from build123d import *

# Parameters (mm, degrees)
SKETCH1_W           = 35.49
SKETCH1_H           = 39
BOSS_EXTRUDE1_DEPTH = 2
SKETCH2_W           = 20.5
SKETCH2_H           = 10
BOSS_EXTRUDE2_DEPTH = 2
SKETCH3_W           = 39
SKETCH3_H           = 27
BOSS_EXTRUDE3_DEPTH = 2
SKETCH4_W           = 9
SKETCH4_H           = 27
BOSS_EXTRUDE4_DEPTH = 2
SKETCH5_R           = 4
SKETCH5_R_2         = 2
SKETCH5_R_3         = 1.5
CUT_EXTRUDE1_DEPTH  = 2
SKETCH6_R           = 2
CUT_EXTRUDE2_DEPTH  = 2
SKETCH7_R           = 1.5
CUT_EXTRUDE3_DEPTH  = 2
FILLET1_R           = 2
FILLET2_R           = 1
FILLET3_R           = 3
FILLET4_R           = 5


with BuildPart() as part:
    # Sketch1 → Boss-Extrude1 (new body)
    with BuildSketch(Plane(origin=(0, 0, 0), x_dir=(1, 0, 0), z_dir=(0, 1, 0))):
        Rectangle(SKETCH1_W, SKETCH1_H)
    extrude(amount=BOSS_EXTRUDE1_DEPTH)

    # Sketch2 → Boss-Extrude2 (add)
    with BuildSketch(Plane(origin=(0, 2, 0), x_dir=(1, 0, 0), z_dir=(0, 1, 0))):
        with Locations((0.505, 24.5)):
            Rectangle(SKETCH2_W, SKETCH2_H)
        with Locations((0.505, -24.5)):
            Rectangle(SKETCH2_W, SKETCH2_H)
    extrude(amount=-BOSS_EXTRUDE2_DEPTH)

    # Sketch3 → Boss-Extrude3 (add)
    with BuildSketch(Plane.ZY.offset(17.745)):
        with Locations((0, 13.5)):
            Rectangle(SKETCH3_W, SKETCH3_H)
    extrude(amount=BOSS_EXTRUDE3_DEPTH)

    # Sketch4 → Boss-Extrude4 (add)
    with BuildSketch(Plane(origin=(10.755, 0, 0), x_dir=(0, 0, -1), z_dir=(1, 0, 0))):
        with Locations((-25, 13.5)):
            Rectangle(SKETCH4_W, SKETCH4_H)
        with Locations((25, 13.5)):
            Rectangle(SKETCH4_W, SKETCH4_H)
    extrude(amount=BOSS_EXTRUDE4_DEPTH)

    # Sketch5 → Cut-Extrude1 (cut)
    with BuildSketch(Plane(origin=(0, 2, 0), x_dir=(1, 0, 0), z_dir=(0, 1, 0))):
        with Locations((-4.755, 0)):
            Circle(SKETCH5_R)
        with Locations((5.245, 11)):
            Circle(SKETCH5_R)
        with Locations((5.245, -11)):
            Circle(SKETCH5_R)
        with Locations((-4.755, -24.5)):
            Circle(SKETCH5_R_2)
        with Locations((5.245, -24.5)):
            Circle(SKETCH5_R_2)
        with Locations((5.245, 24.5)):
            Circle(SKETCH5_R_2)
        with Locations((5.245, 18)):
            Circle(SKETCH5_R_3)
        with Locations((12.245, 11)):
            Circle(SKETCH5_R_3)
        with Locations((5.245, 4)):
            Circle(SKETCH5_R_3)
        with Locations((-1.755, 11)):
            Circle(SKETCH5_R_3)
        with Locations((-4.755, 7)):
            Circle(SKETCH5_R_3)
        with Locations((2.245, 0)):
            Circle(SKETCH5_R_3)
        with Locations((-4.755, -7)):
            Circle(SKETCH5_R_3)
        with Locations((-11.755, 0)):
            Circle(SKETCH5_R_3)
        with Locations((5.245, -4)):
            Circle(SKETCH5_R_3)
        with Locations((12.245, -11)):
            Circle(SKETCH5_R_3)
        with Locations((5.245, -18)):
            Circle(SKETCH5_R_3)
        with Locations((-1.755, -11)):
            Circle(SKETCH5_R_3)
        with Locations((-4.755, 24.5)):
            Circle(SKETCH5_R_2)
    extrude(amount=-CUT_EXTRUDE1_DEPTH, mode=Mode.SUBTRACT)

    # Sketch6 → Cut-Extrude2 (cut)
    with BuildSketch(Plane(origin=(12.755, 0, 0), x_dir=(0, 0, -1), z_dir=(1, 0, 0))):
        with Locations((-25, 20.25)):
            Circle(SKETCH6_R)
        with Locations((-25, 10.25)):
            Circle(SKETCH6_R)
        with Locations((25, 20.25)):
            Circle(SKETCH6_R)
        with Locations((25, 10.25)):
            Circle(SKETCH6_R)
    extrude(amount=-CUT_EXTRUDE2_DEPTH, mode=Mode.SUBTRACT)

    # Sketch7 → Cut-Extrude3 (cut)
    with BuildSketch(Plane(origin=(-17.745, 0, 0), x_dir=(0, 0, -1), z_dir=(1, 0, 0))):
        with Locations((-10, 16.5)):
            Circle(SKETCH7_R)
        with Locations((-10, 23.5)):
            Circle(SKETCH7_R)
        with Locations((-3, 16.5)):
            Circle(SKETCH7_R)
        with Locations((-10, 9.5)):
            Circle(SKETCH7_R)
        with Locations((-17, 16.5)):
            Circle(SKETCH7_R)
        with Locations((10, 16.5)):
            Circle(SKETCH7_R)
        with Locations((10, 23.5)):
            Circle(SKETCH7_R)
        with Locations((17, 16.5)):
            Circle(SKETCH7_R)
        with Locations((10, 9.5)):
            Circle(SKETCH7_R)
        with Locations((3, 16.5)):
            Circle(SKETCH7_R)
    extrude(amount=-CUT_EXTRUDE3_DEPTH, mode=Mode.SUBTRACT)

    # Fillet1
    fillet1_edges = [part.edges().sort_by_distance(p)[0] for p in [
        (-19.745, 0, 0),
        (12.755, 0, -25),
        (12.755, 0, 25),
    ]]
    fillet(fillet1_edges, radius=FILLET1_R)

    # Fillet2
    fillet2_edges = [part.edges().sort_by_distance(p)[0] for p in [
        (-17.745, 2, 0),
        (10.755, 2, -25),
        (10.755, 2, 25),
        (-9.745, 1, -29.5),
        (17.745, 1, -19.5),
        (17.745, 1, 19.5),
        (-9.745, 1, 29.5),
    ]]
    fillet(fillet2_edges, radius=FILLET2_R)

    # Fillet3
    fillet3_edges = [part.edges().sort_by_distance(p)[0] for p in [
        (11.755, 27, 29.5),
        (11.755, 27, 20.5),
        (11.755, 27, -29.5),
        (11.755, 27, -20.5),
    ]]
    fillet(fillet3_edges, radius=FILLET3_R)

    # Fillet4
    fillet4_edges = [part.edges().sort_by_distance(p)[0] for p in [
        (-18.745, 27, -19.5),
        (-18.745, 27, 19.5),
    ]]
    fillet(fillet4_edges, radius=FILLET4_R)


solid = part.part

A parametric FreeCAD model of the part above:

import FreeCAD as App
import Part
import Sketcher

V = App.Vector
Q = App.Units.Quantity


def edges_at(feature, points):
    """Names of the edges that pass closest to the given points."""
    edges = feature.Shape.Edges
    near = lambda p: min(range(len(edges)), key=lambda i: edges[i].distToShape(Part.Vertex(*p))[0])
    return sorted({f"Edge{near(p) + 1}" for p in points})

doc = App.newDocument("Part")
params = doc.addObject("Spreadsheet::Sheet", "Params")
for row, (alias, value) in enumerate([
    ("sketch1_height", "39 mm"),
    ("sketch1_width", "35.49 mm"),
    ("pad1_length", "2 mm"),
    ("sketch2_height", "10 mm"),
    ("sketch2_width", "20.5 mm"),
    ("pad2_length", "2 mm"),
    ("sketch3_width", "27 mm"),
    ("sketch3_height", "39 mm"),
    ("pad3_length", "2 mm"),
    ("sketch4_width", "27 mm"),
    ("sketch4_height", "9 mm"),
    ("pad4_length", "2 mm"),
    ("sketch5_diameter", "8 mm"),
    ("sketch5_diameter2", "4 mm"),
    ("sketch5_diameter3", "3 mm"),
    ("pocket1_length", "2 mm"),
    ("sketch6_diameter", "4 mm"),
    ("pocket2_length", "2 mm"),
    ("sketch7_diameter", "3 mm"),
    ("pocket3_length", "2 mm"),
    ("fillet_radius", "2 mm"),
    ("fillet2_radius", "1 mm"),
    ("fillet3_radius", "3 mm"),
    ("fillet4_radius", "5 mm"),
], start=1):
    params.set(f"A{row}", alias)
    params.set(f"B{row}", "=" + value)
    params.setAlias(f"B{row}", alias)

body = doc.addObject("PartDesign::Body", "Body")

sketch1 = body.newObject("Sketcher::SketchObject", "Sketch")
sketch1.AttachmentSupport = (doc.getObject("XZ_Plane"), [""])
sketch1.MapMode = "FlatFace"
sketch1.addGeometry([
    Part.LineSegment(V(-18, -20, 0), V(-18, 20, 0)),
    Part.LineSegment(V(-18, 20, 0), V(18, 20, 0)),
    Part.LineSegment(V(18, 20, 0), V(18, -20, 0)),
    Part.LineSegment(V(18, -20, 0), V(-18, -20, 0)),
], False)
sketch1.addConstraint([
    Sketcher.Constraint("Coincident", 0, 2, 1, 1),
    Sketcher.Constraint("Coincident", 1, 2, 2, 1),
    Sketcher.Constraint("Coincident", 2, 2, 3, 1),
    Sketcher.Constraint("Coincident", 3, 2, 0, 1),
    Sketcher.Constraint("Vertical", 0),
    Sketcher.Constraint("Horizontal", 1),
    Sketcher.Constraint("Vertical", 2),
    Sketcher.Constraint("Horizontal", 3),
    Sketcher.Constraint("Symmetric", 0, 2, 2, 2, -1, 1),
    Sketcher.Constraint("DistanceY", 0, 1, 0, 2, Q("39 mm")),
    Sketcher.Constraint("DistanceX", 1, 1, 1, 2, Q("35.49 mm")),
])
sketch1.setExpression("Constraints[9]", "Params.sketch1_height")
sketch1.setExpression("Constraints[10]", "Params.sketch1_width")
pad1 = body.newObject("PartDesign::Pad", "Pad")
pad1.Profile = sketch1
pad1.setExpression("Length", "Params.pad1_length")
pad1.Reversed = True

sketch2 = body.newObject("Sketcher::SketchObject", "Sketch001")
sketch2.AttachmentSupport = (doc.getObject("XZ_Plane"), [""])
sketch2.MapMode = "FlatFace"
sketch2.AttachmentOffset = App.Placement(V(0, 0, -2), App.Rotation())
sketch2.addGeometry([
    Part.LineSegment(V(-10, -30, 0), V(-10, -20, 0)),
    Part.LineSegment(V(-10, -20, 0), V(11, -20, 0)),
    Part.LineSegment(V(11, -20, 0), V(11, -30, 0)),
    Part.LineSegment(V(11, -30, 0), V(-10, -30, 0)),
    Part.LineSegment(V(-10, 20, 0), V(-10, 30, 0)),
    Part.LineSegment(V(-10, 30, 0), V(11, 30, 0)),
    Part.LineSegment(V(11, 30, 0), V(11, 20, 0)),
    Part.LineSegment(V(11, 20, 0), V(-10, 20, 0)),
], False)
sketch2.addConstraint([
    Sketcher.Constraint("Coincident", 0, 2, 1, 1),
    Sketcher.Constraint("Coincident", 1, 2, 2, 1),
    Sketcher.Constraint("Coincident", 2, 2, 3, 1),
    Sketcher.Constraint("Coincident", 3, 2, 0, 1),
    Sketcher.Constraint("Coincident", 4, 2, 5, 1),
    Sketcher.Constraint("Coincident", 5, 2, 6, 1),
    Sketcher.Constraint("Coincident", 6, 2, 7, 1),
    Sketcher.Constraint("Coincident", 7, 2, 4, 1),
    Sketcher.Constraint("Vertical", 0),
    Sketcher.Constraint("Horizontal", 1),
    Sketcher.Constraint("Vertical", 2),
    Sketcher.Constraint("Horizontal", 3),
    Sketcher.Constraint("Vertical", 4),
    Sketcher.Constraint("Horizontal", 5),
    Sketcher.Constraint("Vertical", 6),
    Sketcher.Constraint("Horizontal", 7),
    Sketcher.Constraint("Symmetric", 3, 2, 4, 2, -1),
    Sketcher.Constraint("Symmetric", 1, 2, 6, 2, -1),
    Sketcher.Constraint("DistanceY", 0, 1, 0, 2, Q("10 mm")),
    Sketcher.Constraint("DistanceX", 1, 1, 1, 2, Q("20.5 mm")),
    Sketcher.Constraint("DistanceY", 0, 2, 4, 2, Q("49 mm")),
    Sketcher.Constraint("DistanceX", 0, 2, -1, 1, Q("9.745 mm")),
])
sketch2.setExpression("Constraints[18]", "Params.sketch2_height")
sketch2.setExpression("Constraints[19]", "Params.sketch2_width")
pad2 = body.newObject("PartDesign::Pad", "Pad001")
pad2.Profile = sketch2
pad2.setExpression("Length", "Params.pad2_length")

sketch3 = body.newObject("Sketcher::SketchObject", "Sketch002")
sketch3.AttachmentSupport = (doc.getObject("YZ_Plane"), [""])
sketch3.MapMode = "FlatFace"
sketch3.AttachmentOffset = App.Placement(V(0, 0, -17.745), App.Rotation())
sketch3.addGeometry([
    Part.LineSegment(V(27, -20, 0), V(0, -20, 0)),
    Part.LineSegment(V(0, -20, 0), V(0, 20, 0)),
    Part.LineSegment(V(0, 20, 0), V(27, 20, 0)),
    Part.LineSegment(V(27, 20, 0), V(27, -20, 0)),
], False)
sketch3.addConstraint([
    Sketcher.Constraint("Coincident", 0, 2, 1, 1),
    Sketcher.Constraint("Coincident", 1, 2, 2, 1),
    Sketcher.Constraint("Coincident", 2, 2, 3, 1),
    Sketcher.Constraint("Coincident", 3, 2, 0, 1),
    Sketcher.Constraint("Horizontal", 0),
    Sketcher.Constraint("Vertical", 1),
    Sketcher.Constraint("Horizontal", 2),
    Sketcher.Constraint("Vertical", 3),
    Sketcher.Constraint("Symmetric", 0, 2, 1, 2, -1, 1),
    Sketcher.Constraint("DistanceX", 0, 2, 0, 1, Q("27 mm")),
    Sketcher.Constraint("DistanceY", 1, 1, 1, 2, Q("39 mm")),
])
sketch3.setExpression("Constraints[9]", "Params.sketch3_width")
sketch3.setExpression("Constraints[10]", "Params.sketch3_height")
pad3 = body.newObject("PartDesign::Pad", "Pad002")
pad3.Profile = sketch3
pad3.setExpression("Length", "Params.pad3_length")
pad3.Reversed = True

sketch4 = body.newObject("Sketcher::SketchObject", "Sketch003")
sketch4.AttachmentSupport = (doc.getObject("YZ_Plane"), [""])
sketch4.MapMode = "FlatFace"
sketch4.AttachmentOffset = App.Placement(V(0, 0, 10.755), App.Rotation())
sketch4.addGeometry([
    Part.LineSegment(V(27, 30, 0), V(0, 30, 0)),
    Part.LineSegment(V(0, 30, 0), V(0, 20, 0)),
    Part.LineSegment(V(0, 20, 0), V(27, 20, 0)),
    Part.LineSegment(V(27, 20, 0), V(27, 30, 0)),
    Part.LineSegment(V(27, -20, 0), V(0, -20, 0)),
    Part.LineSegment(V(0, -20, 0), V(0, -30, 0)),
    Part.LineSegment(V(0, -30, 0), V(27, -30, 0)),
    Part.LineSegment(V(27, -30, 0), V(27, -20, 0)),
], False)
sketch4.addConstraint([
    Sketcher.Constraint("Coincident", 0, 2, 1, 1),
    Sketcher.Constraint("Coincident", 1, 2, 2, 1),
    Sketcher.Constraint("Coincident", 2, 2, 3, 1),
    Sketcher.Constraint("Coincident", 3, 2, 0, 1),
    Sketcher.Constraint("Coincident", 4, 2, 5, 1),
    Sketcher.Constraint("Coincident", 5, 2, 6, 1),
    Sketcher.Constraint("Coincident", 6, 2, 7, 1),
    Sketcher.Constraint("Coincident", 7, 2, 4, 1),
    Sketcher.Constraint("Horizontal", 0),
    Sketcher.Constraint("Vertical", 1),
    Sketcher.Constraint("Horizontal", 2),
    Sketcher.Constraint("Vertical", 3),
    Sketcher.Constraint("Horizontal", 4),
    Sketcher.Constraint("Vertical", 5),
    Sketcher.Constraint("Horizontal", 6),
    Sketcher.Constraint("Vertical", 7),
    Sketcher.Constraint("Symmetric", 1, 2, 4, 2, -1, 1),
    Sketcher.Constraint("Symmetric", 0, 2, 5, 2, -1),
    Sketcher.Constraint("Vertical", 3, 2, 6, 2),
    Sketcher.Constraint("DistanceX", 0, 2, 0, 1, Q("27 mm")),
    Sketcher.Constraint("DistanceY", 1, 2, 1, 1, Q("9 mm")),
    Sketcher.Constraint("DistanceY", 4, 2, 1, 2, Q("41 mm")),
])
sketch4.setExpression("Constraints[19]", "Params.sketch4_width")
sketch4.setExpression("Constraints[20]", "Params.sketch4_height")
pad4 = body.newObject("PartDesign::Pad", "Pad003")
pad4.Profile = sketch4
pad4.setExpression("Length", "Params.pad4_length")

sketch5 = body.newObject("Sketcher::SketchObject", "Sketch004")
sketch5.AttachmentSupport = (doc.getObject("XZ_Plane"), [""])
sketch5.MapMode = "FlatFace"
sketch5.AttachmentOffset = App.Placement(V(0, 0, -2), App.Rotation())
sketch5.addGeometry([
    Part.Circle(V(-4.8, 0, 0), V(0, 0, 1), 4),
    Part.Circle(V(5.2, -11, 0), V(0, 0, 1), 4),
    Part.Circle(V(5.2, 11, 0), V(0, 0, 1), 4),
    Part.Circle(V(-4.8, 24.5, 0), V(0, 0, 1), 2),
    Part.Circle(V(5.2, 24.5, 0), V(0, 0, 1), 2),
    Part.Circle(V(5.2, -24.5, 0), V(0, 0, 1), 2),
    Part.Circle(V(5.2, -18, 0), V(0, 0, 1), 1.5),
    Part.Circle(V(12.2, -11, 0), V(0, 0, 1), 1.5),
    Part.Circle(V(5.2, -4, 0), V(0, 0, 1), 1.5),
    Part.Circle(V(-1.8, -11, 0), V(0, 0, 1), 1.5),
    Part.Circle(V(-4.8, -7, 0), V(0, 0, 1), 1.5),
    Part.Circle(V(2.2, 0, 0), V(0, 0, 1), 1.5),
    Part.Circle(V(-4.8, 7, 0), V(0, 0, 1), 1.5),
    Part.Circle(V(-11.8, 0, 0), V(0, 0, 1), 1.5),
    Part.Circle(V(5.2, 4, 0), V(0, 0, 1), 1.5),
    Part.Circle(V(12.2, 11, 0), V(0, 0, 1), 1.5),
    Part.Circle(V(5.2, 18, 0), V(0, 0, 1), 1.5),
    Part.Circle(V(-1.8, 11, 0), V(0, 0, 1), 1.5),
    Part.Circle(V(-4.8, -24.5, 0), V(0, 0, 1), 2),
], False)
sketch5.addConstraint([
    Sketcher.Constraint("Equal", 0, 1),
    Sketcher.Constraint("Equal", 1, 2),
    Sketcher.Constraint("Equal", 3, 4),
    Sketcher.Constraint("Equal", 4, 5),
    Sketcher.Constraint("Equal", 6, 7),
    Sketcher.Constraint("Equal", 7, 8),
    Sketcher.Constraint("Equal", 8, 9),
    Sketcher.Constraint("Equal", 9, 10),
    Sketcher.Constraint("Equal", 10, 11),
    Sketcher.Constraint("Equal", 11, 12),
    Sketcher.Constraint("Equal", 12, 13),
    Sketcher.Constraint("Equal", 13, 14),
    Sketcher.Constraint("Equal", 14, 15),
    Sketcher.Constraint("Equal", 15, 16),
    Sketcher.Constraint("Equal", 16, 17),
    Sketcher.Constraint("Equal", 5, 18),
    Sketcher.Constraint("Symmetric", 1, 3, 2, 3, -1),
    Sketcher.Constraint("Symmetric", 4, 3, 5, 3, -1),
    Sketcher.Constraint("Symmetric", 10, 3, 12, 3, -1),
    Sketcher.Constraint("Symmetric", 8, 3, 14, 3, -1),
    Sketcher.Constraint("Symmetric", 7, 3, 15, 3, -1),
    Sketcher.Constraint("Symmetric", 6, 3, 16, 3, -1),
    Sketcher.Constraint("Symmetric", 9, 3, 17, 3, -1),
    Sketcher.Constraint("Symmetric", 3, 3, 18, 3, -1),
    Sketcher.Constraint("PointOnObject", 0, 3, -1),
    Sketcher.Constraint("PointOnObject", 11, 3, -1),
    Sketcher.Constraint("PointOnObject", 13, 3, -1),
    Sketcher.Constraint("Horizontal", 3, 3, 4, 3),
    Sketcher.Constraint("Horizontal", 1, 3, 7, 3),
    Sketcher.Constraint("Horizontal", 7, 3, 9, 3),
    Sketcher.Constraint("Vertical", 0, 3, 3, 3),
    Sketcher.Constraint("Vertical", 2, 3, 4, 3),
    Sketcher.Constraint("Vertical", 5, 3, 6, 3),
    Sketcher.Constraint("Vertical", 6, 3, 8, 3),
    Sketcher.Constraint("Vertical", 3, 3, 10, 3),
    Sketcher.Constraint("Diameter", 0, Q("8 mm")),
    Sketcher.Constraint("Diameter", 3, Q("4 mm")),
    Sketcher.Constraint("Diameter", 6, Q("3 mm")),
    Sketcher.Constraint("DistanceY", 1, 3, -1, 1, Q("11 mm")),
    Sketcher.Constraint("DistanceY", 6, 3, -1, 1, Q("18 mm")),
    Sketcher.Constraint("DistanceY", 8, 3, -1, 1, Q("4 mm")),
    Sketcher.Constraint("DistanceY", 10, 3, -1, 1, Q("7 mm")),
    Sketcher.Constraint("DistanceX", 0, 3, 1, 3, Q("10 mm")),
    Sketcher.Constraint("DistanceY", 5, 3, 4, 3, Q("49 mm")),
    Sketcher.Constraint("DistanceX", 1, 3, 7, 3, Q("7 mm")),
    Sketcher.Constraint("DistanceX", 9, 3, 1, 3, Q("7 mm")),
    Sketcher.Constraint("DistanceX", 11, 3, 8, 3, Q("3 mm")),
    Sketcher.Constraint("DistanceX", 13, 3, 0, 3, Q("7 mm")),
    Sketcher.Constraint("DistanceX", 0, 3, -1, 1, Q("4.755 mm")),
])
sketch5.setExpression("Constraints[35]", "Params.sketch5_diameter")
sketch5.setExpression("Constraints[36]", "Params.sketch5_diameter2")
sketch5.setExpression("Constraints[37]", "Params.sketch5_diameter3")
pocket1 = body.newObject("PartDesign::Pocket", "Pocket")
pocket1.Profile = sketch5
pocket1.setExpression("Length", "Params.pocket1_length")
pocket1.Reversed = True

sketch6 = body.newObject("Sketcher::SketchObject", "Sketch005")
sketch6.AttachmentSupport = (doc.getObject("YZ_Plane"), [""])
sketch6.MapMode = "FlatFace"
sketch6.AttachmentOffset = App.Placement(V(0, 0, 12.755), App.Rotation())
sketch6.addGeometry([
    Part.Circle(V(20.2, 25, 0), V(0, 0, 1), 2),
    Part.Circle(V(10.2, 25, 0), V(0, 0, 1), 2),
    Part.Circle(V(20.2, -25, 0), V(0, 0, 1), 2),
    Part.Circle(V(10.2, -25, 0), V(0, 0, 1), 2),
], False)
sketch6.addConstraint([
    Sketcher.Constraint("Equal", 0, 1),
    Sketcher.Constraint("Equal", 1, 2),
    Sketcher.Constraint("Equal", 2, 3),
    Sketcher.Constraint("Symmetric", 0, 3, 2, 3, -1),
    Sketcher.Constraint("Symmetric", 1, 3, 3, 3, -1),
    Sketcher.Constraint("Horizontal", 0, 3, 1, 3),
    Sketcher.Constraint("Diameter", 0, Q("4 mm")),
    Sketcher.Constraint("DistanceY", -1, 1, 0, 3, Q("25 mm")),
    Sketcher.Constraint("DistanceX", 1, 3, 0, 3, Q("10 mm")),
    Sketcher.Constraint("DistanceX", -1, 1, 0, 3, Q("20.25 mm")),
])
sketch6.setExpression("Constraints[6]", "Params.sketch6_diameter")
pocket2 = body.newObject("PartDesign::Pocket", "Pocket001")
pocket2.Profile = sketch6
pocket2.setExpression("Length", "Params.pocket2_length")

sketch7 = body.newObject("Sketcher::SketchObject", "Sketch006")
sketch7.AttachmentSupport = (doc.getObject("YZ_Plane"), [""])
sketch7.MapMode = "FlatFace"
sketch7.AttachmentOffset = App.Placement(V(0, 0, -17.745), App.Rotation())
sketch7.addGeometry([
    Part.Circle(V(16.5, 10, 0), V(0, 0, 1), 1.5),
    Part.Circle(V(23.5, 10, 0), V(0, 0, 1), 1.5),
    Part.Circle(V(16.5, 3, 0), V(0, 0, 1), 1.5),
    Part.Circle(V(9.5, 10, 0), V(0, 0, 1), 1.5),
    Part.Circle(V(16.5, 17, 0), V(0, 0, 1), 1.5),
    Part.Circle(V(16.5, -10, 0), V(0, 0, 1), 1.5),
    Part.Circle(V(23.5, -10, 0), V(0, 0, 1), 1.5),
    Part.Circle(V(16.5, -17, 0), V(0, 0, 1), 1.5),
    Part.Circle(V(9.5, -10, 0), V(0, 0, 1), 1.5),
    Part.Circle(V(16.5, -3, 0), V(0, 0, 1), 1.5),
], False)
sketch7.addConstraint([
    Sketcher.Constraint("Equal", 0, 1),
    Sketcher.Constraint("Equal", 1, 2),
    Sketcher.Constraint("Equal", 2, 3),
    Sketcher.Constraint("Equal", 3, 4),
    Sketcher.Constraint("Equal", 4, 5),
    Sketcher.Constraint("Equal", 5, 6),
    Sketcher.Constraint("Equal", 6, 7),
    Sketcher.Constraint("Equal", 7, 8),
    Sketcher.Constraint("Equal", 8, 9),
    Sketcher.Constraint("Symmetric", 0, 3, 5, 3, -1),
    Sketcher.Constraint("Symmetric", 1, 3, 6, 3, -1),
    Sketcher.Constraint("Symmetric", 4, 3, 7, 3, -1),
    Sketcher.Constraint("Symmetric", 3, 3, 8, 3, -1),
    Sketcher.Constraint("Symmetric", 2, 3, 9, 3, -1),
    Sketcher.Constraint("Horizontal", 0, 3, 1, 3),
    Sketcher.Constraint("Horizontal", 1, 3, 3, 3),
    Sketcher.Constraint("Vertical", 0, 3, 2, 3),
    Sketcher.Constraint("Vertical", 2, 3, 4, 3),
    Sketcher.Constraint("Diameter", 0, Q("3 mm")),
    Sketcher.Constraint("DistanceY", -1, 1, 0, 3, Q("10 mm")),
    Sketcher.Constraint("DistanceY", -1, 1, 2, 3, Q("3 mm")),
    Sketcher.Constraint("DistanceY", -1, 1, 4, 3, Q("17 mm")),
    Sketcher.Constraint("DistanceX", 0, 3, 1, 3, Q("7 mm")),
    Sketcher.Constraint("DistanceX", 3, 3, 0, 3, Q("7 mm")),
    Sketcher.Constraint("DistanceX", -1, 1, 0, 3, Q("16.5 mm")),
])
sketch7.setExpression("Constraints[18]", "Params.sketch7_diameter")
pocket3 = body.newObject("PartDesign::Pocket", "Pocket002")
pocket3.Profile = sketch7
pocket3.setExpression("Length", "Params.pocket3_length")
doc.recompute()

fillet = body.newObject("PartDesign::Fillet", "Fillet")
fillet.Base = (pocket3, edges_at(pocket3, [(-19.745, 0, 0), (12.755, 0, -25), (12.755, 0, 25)]))
fillet.setExpression("Radius", "Params.fillet_radius")
doc.recompute()

fillet2 = body.newObject("PartDesign::Fillet", "Fillet001")
fillet2.Base = (fillet, edges_at(fillet, [
    (-17.745, 2, 0),
    (10.755, 2, -25),
    (10.755, 2, 25),
    (-9.745, 1, -29.5),
    (17.745, 1, -19.5),
    (17.745, 1, 19.5),
    (-9.745, 1, 29.5),
]))
fillet2.setExpression("Radius", "Params.fillet2_radius")
doc.recompute()

fillet3 = body.newObject("PartDesign::Fillet", "Fillet002")
fillet3.Base = (fillet2, edges_at(fillet2, [
    (11.755, 27, 29.5),
    (11.755, 27, 20.5),
    (11.755, 27, -29.5),
    (11.755, 27, -20.5),
]))
fillet3.setExpression("Radius", "Params.fillet3_radius")
doc.recompute()

fillet4 = body.newObject("PartDesign::Fillet", "Fillet003")
fillet4.Base = (fillet3, edges_at(fillet3, [(-18.745, 27, -19.5), (-18.745, 27, 19.5)]))
fillet4.setExpression("Radius", "Params.fillet4_radius")

doc.recompute()
